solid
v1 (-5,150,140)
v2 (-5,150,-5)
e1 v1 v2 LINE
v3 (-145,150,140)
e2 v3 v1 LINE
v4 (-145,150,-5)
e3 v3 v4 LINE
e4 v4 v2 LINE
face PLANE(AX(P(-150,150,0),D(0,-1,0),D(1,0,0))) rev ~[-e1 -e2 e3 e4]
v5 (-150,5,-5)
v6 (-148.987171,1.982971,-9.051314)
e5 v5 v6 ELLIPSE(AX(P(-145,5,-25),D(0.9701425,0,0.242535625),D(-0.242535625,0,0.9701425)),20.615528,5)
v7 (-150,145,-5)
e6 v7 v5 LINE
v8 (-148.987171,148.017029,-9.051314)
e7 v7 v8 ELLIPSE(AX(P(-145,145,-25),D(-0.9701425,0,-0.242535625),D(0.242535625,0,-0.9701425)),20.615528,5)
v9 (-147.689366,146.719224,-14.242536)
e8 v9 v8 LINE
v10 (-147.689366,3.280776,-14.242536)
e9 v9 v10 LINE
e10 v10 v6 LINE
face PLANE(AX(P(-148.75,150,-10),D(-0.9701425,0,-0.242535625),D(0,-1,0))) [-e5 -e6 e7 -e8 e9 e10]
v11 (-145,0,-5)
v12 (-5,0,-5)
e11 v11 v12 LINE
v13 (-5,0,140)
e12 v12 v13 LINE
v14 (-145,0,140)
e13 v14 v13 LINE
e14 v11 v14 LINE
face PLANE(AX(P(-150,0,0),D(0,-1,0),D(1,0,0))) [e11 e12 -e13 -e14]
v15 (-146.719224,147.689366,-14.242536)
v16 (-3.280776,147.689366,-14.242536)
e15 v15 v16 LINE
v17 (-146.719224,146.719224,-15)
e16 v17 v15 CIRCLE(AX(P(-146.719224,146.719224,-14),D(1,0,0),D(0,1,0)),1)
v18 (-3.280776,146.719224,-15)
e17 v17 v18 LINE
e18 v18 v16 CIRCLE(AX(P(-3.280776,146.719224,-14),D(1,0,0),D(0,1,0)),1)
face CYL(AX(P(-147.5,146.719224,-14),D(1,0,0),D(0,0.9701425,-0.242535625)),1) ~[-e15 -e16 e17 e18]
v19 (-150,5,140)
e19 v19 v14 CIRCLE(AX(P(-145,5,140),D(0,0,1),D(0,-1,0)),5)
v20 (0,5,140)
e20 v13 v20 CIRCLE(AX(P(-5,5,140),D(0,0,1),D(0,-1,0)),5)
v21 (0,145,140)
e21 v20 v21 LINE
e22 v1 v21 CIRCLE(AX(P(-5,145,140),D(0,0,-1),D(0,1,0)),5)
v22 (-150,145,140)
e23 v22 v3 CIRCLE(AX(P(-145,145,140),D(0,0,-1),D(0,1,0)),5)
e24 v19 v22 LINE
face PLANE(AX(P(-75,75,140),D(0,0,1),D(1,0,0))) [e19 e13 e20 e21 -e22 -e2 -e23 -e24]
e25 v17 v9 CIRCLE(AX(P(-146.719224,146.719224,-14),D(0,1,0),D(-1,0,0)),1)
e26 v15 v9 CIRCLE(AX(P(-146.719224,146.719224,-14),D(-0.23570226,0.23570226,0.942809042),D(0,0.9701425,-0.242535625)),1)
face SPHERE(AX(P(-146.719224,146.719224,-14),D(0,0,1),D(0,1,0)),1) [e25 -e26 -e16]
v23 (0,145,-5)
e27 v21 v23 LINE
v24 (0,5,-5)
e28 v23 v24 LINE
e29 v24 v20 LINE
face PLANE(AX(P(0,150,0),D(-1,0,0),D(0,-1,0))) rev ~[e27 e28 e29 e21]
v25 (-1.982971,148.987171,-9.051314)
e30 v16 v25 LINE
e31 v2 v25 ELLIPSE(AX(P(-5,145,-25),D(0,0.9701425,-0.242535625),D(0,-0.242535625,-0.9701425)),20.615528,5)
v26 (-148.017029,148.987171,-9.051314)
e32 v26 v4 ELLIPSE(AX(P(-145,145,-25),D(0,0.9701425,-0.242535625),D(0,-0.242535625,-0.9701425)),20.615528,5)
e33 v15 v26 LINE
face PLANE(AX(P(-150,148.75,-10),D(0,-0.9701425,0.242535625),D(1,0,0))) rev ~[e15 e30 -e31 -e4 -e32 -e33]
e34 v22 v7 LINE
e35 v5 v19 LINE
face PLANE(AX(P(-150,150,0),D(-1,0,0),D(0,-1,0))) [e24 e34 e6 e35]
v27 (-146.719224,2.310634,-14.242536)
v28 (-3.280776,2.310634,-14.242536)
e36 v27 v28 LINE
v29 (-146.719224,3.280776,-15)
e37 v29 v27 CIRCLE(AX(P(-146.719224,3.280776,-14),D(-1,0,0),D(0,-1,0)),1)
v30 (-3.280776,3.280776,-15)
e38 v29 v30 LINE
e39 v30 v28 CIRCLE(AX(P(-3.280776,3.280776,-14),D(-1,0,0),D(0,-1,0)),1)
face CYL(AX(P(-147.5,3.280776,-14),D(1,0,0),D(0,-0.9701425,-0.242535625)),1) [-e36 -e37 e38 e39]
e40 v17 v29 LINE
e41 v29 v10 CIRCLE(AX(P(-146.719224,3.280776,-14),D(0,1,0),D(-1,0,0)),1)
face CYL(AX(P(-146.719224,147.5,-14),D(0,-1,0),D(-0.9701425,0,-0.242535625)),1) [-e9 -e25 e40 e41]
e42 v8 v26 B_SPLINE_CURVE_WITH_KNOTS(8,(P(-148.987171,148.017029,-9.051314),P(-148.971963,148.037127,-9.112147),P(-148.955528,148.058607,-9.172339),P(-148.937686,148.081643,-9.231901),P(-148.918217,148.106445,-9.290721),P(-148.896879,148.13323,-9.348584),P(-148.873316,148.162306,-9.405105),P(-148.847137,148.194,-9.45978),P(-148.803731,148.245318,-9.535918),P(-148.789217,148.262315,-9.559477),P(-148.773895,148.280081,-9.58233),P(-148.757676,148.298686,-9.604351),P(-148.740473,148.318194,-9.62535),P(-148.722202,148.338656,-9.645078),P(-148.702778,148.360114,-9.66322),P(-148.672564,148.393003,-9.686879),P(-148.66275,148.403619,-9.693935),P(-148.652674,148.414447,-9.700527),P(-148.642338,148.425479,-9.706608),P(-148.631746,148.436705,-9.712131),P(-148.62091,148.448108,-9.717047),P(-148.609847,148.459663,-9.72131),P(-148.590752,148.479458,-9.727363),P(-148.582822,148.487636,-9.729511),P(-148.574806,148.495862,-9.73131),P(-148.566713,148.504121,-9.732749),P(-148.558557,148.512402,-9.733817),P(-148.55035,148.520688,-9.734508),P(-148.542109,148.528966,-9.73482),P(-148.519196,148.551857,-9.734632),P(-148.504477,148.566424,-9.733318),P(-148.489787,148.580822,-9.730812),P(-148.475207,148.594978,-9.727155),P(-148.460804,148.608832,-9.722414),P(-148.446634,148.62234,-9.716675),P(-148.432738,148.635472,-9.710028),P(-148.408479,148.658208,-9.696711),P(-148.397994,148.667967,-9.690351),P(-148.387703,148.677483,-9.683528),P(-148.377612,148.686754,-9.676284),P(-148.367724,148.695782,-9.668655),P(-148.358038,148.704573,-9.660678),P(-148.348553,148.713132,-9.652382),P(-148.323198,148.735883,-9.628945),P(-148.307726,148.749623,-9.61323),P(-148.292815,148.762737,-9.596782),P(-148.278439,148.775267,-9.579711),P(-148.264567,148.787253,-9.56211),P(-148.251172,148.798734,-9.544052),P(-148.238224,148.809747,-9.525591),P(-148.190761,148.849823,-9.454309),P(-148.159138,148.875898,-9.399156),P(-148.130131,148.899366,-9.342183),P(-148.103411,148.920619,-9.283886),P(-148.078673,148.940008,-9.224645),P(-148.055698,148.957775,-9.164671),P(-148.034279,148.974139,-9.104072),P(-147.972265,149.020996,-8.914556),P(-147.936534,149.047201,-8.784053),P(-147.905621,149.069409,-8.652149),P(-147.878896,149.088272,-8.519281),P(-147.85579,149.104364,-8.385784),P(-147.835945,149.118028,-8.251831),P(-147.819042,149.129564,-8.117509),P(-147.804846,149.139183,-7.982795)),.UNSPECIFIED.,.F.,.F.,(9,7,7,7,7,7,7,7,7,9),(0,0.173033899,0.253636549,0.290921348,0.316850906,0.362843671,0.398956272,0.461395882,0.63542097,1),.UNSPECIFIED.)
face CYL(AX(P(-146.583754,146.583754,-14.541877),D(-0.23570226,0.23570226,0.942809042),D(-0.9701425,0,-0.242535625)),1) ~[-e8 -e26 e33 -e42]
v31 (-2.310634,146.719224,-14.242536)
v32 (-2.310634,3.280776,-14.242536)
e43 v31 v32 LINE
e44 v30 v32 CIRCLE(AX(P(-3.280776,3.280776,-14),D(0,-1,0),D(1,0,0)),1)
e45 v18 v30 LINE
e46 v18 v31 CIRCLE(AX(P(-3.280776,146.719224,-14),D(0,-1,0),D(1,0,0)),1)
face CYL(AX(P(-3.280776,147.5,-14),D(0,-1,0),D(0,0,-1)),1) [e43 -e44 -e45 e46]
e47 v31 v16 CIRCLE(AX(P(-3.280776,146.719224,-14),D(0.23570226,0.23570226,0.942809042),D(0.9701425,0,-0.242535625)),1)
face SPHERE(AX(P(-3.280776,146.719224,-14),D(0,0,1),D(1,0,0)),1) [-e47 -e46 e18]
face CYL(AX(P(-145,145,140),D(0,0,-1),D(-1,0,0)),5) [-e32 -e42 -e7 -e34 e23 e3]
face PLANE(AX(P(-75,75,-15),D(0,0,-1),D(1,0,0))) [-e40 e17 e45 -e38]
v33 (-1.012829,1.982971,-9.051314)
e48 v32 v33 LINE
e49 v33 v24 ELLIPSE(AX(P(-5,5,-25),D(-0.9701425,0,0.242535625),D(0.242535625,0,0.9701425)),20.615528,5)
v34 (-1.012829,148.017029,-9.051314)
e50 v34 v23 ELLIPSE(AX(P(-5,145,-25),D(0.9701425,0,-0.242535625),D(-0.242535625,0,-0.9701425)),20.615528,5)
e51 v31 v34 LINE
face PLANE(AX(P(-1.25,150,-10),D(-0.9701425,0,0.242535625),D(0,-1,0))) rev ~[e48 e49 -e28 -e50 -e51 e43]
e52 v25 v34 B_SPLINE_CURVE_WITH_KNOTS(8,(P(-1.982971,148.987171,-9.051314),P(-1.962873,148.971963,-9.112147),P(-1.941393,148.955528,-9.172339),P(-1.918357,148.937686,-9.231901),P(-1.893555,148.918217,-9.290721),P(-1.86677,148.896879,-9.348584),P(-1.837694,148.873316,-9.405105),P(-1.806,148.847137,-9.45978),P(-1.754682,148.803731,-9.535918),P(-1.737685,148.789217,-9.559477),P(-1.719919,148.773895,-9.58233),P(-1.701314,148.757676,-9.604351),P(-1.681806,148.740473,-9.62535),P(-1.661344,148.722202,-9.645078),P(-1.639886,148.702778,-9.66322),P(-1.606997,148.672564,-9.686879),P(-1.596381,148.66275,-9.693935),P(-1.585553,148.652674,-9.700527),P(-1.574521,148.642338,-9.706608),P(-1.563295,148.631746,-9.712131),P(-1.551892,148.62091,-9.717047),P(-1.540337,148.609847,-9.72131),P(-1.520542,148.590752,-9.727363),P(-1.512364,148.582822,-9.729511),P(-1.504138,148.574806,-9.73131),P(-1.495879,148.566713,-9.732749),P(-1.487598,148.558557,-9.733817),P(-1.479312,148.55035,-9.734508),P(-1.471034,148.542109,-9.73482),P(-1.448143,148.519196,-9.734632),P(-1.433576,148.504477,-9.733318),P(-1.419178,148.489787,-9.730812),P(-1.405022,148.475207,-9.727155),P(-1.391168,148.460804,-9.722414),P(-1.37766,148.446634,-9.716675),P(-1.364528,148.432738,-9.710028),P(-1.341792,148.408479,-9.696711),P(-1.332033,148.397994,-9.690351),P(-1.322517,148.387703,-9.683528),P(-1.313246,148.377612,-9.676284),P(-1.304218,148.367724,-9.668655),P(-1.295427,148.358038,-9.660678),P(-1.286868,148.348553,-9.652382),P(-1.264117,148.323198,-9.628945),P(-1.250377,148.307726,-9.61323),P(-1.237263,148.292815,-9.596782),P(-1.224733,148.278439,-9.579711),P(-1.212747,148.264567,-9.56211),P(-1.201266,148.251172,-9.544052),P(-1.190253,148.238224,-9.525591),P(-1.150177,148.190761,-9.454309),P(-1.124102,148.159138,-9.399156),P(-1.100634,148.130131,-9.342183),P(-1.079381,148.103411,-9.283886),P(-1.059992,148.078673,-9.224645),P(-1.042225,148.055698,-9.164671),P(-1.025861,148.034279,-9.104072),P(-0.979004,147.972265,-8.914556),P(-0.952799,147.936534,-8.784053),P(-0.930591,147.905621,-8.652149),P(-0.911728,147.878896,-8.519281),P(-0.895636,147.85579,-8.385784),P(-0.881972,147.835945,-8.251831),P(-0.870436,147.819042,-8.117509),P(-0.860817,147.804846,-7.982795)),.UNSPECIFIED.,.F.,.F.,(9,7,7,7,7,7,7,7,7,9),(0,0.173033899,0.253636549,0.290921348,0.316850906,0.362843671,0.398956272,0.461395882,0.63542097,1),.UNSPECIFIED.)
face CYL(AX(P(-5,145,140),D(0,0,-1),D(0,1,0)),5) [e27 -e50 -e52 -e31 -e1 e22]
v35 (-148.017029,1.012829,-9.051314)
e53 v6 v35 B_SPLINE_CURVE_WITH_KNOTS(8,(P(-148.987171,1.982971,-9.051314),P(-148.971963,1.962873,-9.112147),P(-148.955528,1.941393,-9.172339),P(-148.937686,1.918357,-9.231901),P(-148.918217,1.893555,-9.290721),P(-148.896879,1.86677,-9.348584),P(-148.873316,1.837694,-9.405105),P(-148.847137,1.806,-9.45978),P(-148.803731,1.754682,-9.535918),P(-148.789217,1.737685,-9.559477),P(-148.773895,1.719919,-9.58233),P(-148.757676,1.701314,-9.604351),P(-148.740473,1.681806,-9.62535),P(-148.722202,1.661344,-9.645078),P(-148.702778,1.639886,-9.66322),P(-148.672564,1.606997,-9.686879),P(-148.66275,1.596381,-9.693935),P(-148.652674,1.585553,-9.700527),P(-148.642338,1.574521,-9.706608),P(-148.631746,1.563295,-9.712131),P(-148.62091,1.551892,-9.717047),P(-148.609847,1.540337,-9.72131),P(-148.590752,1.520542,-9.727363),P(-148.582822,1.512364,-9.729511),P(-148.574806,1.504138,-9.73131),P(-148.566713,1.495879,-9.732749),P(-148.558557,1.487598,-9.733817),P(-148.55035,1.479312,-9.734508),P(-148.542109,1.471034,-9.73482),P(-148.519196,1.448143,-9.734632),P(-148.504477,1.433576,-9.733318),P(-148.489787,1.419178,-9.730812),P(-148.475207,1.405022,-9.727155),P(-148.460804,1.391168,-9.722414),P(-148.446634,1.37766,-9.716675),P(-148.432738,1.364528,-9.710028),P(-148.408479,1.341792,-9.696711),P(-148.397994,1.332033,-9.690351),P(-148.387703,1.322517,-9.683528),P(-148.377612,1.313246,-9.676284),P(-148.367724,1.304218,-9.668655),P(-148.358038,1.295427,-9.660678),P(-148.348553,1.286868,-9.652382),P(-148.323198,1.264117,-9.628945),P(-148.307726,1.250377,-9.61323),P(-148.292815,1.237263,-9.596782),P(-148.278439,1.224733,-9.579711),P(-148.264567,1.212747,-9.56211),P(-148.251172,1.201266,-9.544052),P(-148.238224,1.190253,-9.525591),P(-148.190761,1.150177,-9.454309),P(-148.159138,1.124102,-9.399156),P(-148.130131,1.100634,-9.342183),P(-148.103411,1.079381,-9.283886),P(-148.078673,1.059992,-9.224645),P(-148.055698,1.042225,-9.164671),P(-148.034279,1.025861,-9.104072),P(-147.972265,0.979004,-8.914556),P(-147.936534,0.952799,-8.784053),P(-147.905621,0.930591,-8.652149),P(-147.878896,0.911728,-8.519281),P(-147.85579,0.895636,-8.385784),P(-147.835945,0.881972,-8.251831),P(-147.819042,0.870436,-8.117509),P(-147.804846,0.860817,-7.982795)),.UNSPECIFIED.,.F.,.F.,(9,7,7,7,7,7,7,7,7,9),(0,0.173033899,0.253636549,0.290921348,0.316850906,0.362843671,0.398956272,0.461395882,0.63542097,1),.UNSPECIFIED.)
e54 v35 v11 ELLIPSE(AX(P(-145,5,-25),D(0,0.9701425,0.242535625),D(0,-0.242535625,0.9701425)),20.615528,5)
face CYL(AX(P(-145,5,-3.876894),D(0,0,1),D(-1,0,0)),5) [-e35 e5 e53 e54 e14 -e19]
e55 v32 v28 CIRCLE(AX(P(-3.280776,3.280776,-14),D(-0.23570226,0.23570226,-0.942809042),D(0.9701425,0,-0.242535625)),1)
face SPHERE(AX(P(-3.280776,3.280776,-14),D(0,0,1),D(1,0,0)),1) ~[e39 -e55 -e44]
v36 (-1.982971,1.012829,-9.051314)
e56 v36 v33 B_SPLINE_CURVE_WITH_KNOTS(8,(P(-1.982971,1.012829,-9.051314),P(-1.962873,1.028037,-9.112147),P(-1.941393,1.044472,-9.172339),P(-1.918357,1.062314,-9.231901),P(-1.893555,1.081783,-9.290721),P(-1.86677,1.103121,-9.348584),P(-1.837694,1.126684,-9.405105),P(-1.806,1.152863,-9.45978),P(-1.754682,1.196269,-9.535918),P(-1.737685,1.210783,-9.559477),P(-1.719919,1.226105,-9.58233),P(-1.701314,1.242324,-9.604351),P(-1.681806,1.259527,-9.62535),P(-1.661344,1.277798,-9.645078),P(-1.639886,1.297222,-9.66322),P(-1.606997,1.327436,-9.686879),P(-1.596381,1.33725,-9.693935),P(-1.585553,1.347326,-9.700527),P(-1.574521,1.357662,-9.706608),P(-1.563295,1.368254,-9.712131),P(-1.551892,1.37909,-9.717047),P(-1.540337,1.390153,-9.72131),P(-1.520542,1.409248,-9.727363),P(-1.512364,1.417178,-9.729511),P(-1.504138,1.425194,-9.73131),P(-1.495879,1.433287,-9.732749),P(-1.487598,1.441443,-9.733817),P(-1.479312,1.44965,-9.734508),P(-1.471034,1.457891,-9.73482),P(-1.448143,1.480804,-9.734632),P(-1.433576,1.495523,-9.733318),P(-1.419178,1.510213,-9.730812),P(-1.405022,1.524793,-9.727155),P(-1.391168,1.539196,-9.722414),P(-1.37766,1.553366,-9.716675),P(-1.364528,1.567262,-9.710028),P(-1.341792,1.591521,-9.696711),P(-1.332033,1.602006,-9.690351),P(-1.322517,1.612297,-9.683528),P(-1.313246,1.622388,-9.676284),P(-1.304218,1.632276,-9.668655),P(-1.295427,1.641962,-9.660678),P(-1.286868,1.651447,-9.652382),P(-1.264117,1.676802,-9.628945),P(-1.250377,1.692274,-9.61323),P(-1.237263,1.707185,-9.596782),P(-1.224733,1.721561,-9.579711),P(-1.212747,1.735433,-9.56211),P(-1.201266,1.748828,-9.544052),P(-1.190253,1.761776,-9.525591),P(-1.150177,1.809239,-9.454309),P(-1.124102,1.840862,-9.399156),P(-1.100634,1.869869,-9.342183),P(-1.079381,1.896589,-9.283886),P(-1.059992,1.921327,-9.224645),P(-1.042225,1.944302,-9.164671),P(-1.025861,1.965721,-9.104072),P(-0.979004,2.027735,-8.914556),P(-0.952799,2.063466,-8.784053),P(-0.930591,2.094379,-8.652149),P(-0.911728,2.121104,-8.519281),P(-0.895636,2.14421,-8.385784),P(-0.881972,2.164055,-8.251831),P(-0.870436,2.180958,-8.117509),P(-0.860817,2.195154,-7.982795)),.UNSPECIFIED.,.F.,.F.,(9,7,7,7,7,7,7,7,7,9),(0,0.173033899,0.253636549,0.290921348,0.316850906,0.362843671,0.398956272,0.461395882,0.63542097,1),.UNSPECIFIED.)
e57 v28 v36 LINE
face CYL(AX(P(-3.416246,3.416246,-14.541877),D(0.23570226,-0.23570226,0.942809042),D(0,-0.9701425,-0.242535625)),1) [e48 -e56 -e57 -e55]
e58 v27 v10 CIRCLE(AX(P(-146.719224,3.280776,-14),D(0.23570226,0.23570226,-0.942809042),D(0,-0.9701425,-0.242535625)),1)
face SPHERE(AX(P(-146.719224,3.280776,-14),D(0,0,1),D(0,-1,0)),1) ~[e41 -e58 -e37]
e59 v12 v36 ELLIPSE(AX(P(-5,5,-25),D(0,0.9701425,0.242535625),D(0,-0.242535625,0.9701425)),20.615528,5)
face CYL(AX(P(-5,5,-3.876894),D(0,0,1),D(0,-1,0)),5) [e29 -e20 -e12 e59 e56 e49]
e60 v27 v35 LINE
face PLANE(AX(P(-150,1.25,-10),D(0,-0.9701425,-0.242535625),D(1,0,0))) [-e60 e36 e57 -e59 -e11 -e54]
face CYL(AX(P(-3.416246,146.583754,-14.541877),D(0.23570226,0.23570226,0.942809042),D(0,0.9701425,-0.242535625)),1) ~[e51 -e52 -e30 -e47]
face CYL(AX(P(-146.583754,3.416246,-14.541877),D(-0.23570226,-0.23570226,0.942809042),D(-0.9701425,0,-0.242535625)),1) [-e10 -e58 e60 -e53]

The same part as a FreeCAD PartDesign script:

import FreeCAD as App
import Part
import Sketcher
from FreeCAD import Vector


def edges_at(feature, points):
    """Names of the edges that pass closest to the given points."""
    edges = feature.Shape.Edges
    near = lambda p: min(range(len(edges)), key=lambda i: edges[i].distToShape(Part.Vertex(*p))[0])
    return sorted({f"Edge{near(p) + 1}" for p in points})


def add_polygon(sketch, points):
    """Adds a closed chain of lines whose ends are joined by coincident constraints."""
    first, n = sketch.GeometryCount, len(points)
    for a, b in zip(points, points[1:] + points[:1]):
        sketch.addGeometry(Part.LineSegment(App.Vector(*a, 0), App.Vector(*b, 0)), False)
    for i in range(n):
        sketch.addConstraint(Sketcher.Constraint("Coincident", first + i, 2, first + (i + 1) % n, 1))

doc = App.newDocument("Part")
body = doc.addObject("PartDesign::Body", "Body")

sketch1 = body.newObject("Sketcher::SketchObject", "Sketch")
sketch1.AttachmentSupport = (doc.getObject("XY_Plane"), [""])
sketch1.MapMode = "FlatFace"
add_polygon(sketch1, [(-150, 150), (-150, 0), (0, 0), (0, 150)])
sketch1.addConstraint([
    Sketcher.Constraint("Vertical", 0),
    Sketcher.Constraint("Horizontal", 1),
    Sketcher.Constraint("Vertical", 2),
    Sketcher.Constraint("Horizontal", 3),
    Sketcher.Constraint("Coincident", 1, 2, -1, 1),
    Sketcher.Constraint("Equal", 3, 0),
    Sketcher.Constraint("DistanceX", 1, 1, 1, 2, 150.0),
])
pad1 = body.newObject("PartDesign::Pad", "Pad")
pad1.Profile = sketch1
pad1.Length = 140

sketch2 = body.newObject("Sketcher::SketchObject", "Sketch001")
sketch2.AttachmentSupport = (doc.getObject("XY_Plane"), [""])
sketch2.MapMode = "FlatFace"
add_polygon(sketch2, [(-150, 0), (-150, 150), (0, 150), (0, 0)])
sketch2.addConstraint([
    Sketcher.Constraint("Vertical", 0),
    Sketcher.Constraint("Horizontal", 1),
    Sketcher.Constraint("Vertical", 2),
    Sketcher.Constraint("Horizontal", 3),
    Sketcher.Constraint("Coincident", 2, 2, -1, 1),
    Sketcher.Constraint("Equal", 3, 0),
    Sketcher.Constraint("DistanceX", 1, 1, 1, 2, 150.0),
])
pad2 = body.newObject("PartDesign::Pad", "Pad001")
pad2.Profile = sketch2
pad2.Length = 15
pad2.Reversed = True
doc.recompute()

chamfer = body.newObject("PartDesign::Chamfer", "Chamfer")
chamfer.Base = (pad2, edges_at(pad2, [
    (0, 75, -15),
    (-75, 0, -15),
    (-150, 75, -15),
    (-75, 150, -15),
]))
chamfer.ChamferType = "Two distances"
chamfer.Size = 2.5
chamfer.Size2 = 10
doc.recompute()

fillet = body.newObject("PartDesign::Fillet", "Fillet")
fillet.Base = (chamfer, edges_at(chamfer, [
    (-1.25, 1.25, -10),
    (-148.75, 1.25, -10),
    (-148.75, 148.75, -10),
    (-1.25, 148.75, -10),
    (-2.5, 75, -15),
    (-75, 147.5, -15),
    (-75, 2.5, -15),
    (-147.5, 75, -15),
]))
fillet.Radius = 1
doc.recompute()

fillet2 = body.newObject("PartDesign::Fillet", "Fillet001")
fillet2.Base = (fillet, edges_at(fillet, [
    (0, 0, 68.062),
    (-150, 0, 68.062),
    (-150, 150, 68.062),
    (0, 150, 68.062),
]))
fillet2.Radius = 5

doc.recompute()
